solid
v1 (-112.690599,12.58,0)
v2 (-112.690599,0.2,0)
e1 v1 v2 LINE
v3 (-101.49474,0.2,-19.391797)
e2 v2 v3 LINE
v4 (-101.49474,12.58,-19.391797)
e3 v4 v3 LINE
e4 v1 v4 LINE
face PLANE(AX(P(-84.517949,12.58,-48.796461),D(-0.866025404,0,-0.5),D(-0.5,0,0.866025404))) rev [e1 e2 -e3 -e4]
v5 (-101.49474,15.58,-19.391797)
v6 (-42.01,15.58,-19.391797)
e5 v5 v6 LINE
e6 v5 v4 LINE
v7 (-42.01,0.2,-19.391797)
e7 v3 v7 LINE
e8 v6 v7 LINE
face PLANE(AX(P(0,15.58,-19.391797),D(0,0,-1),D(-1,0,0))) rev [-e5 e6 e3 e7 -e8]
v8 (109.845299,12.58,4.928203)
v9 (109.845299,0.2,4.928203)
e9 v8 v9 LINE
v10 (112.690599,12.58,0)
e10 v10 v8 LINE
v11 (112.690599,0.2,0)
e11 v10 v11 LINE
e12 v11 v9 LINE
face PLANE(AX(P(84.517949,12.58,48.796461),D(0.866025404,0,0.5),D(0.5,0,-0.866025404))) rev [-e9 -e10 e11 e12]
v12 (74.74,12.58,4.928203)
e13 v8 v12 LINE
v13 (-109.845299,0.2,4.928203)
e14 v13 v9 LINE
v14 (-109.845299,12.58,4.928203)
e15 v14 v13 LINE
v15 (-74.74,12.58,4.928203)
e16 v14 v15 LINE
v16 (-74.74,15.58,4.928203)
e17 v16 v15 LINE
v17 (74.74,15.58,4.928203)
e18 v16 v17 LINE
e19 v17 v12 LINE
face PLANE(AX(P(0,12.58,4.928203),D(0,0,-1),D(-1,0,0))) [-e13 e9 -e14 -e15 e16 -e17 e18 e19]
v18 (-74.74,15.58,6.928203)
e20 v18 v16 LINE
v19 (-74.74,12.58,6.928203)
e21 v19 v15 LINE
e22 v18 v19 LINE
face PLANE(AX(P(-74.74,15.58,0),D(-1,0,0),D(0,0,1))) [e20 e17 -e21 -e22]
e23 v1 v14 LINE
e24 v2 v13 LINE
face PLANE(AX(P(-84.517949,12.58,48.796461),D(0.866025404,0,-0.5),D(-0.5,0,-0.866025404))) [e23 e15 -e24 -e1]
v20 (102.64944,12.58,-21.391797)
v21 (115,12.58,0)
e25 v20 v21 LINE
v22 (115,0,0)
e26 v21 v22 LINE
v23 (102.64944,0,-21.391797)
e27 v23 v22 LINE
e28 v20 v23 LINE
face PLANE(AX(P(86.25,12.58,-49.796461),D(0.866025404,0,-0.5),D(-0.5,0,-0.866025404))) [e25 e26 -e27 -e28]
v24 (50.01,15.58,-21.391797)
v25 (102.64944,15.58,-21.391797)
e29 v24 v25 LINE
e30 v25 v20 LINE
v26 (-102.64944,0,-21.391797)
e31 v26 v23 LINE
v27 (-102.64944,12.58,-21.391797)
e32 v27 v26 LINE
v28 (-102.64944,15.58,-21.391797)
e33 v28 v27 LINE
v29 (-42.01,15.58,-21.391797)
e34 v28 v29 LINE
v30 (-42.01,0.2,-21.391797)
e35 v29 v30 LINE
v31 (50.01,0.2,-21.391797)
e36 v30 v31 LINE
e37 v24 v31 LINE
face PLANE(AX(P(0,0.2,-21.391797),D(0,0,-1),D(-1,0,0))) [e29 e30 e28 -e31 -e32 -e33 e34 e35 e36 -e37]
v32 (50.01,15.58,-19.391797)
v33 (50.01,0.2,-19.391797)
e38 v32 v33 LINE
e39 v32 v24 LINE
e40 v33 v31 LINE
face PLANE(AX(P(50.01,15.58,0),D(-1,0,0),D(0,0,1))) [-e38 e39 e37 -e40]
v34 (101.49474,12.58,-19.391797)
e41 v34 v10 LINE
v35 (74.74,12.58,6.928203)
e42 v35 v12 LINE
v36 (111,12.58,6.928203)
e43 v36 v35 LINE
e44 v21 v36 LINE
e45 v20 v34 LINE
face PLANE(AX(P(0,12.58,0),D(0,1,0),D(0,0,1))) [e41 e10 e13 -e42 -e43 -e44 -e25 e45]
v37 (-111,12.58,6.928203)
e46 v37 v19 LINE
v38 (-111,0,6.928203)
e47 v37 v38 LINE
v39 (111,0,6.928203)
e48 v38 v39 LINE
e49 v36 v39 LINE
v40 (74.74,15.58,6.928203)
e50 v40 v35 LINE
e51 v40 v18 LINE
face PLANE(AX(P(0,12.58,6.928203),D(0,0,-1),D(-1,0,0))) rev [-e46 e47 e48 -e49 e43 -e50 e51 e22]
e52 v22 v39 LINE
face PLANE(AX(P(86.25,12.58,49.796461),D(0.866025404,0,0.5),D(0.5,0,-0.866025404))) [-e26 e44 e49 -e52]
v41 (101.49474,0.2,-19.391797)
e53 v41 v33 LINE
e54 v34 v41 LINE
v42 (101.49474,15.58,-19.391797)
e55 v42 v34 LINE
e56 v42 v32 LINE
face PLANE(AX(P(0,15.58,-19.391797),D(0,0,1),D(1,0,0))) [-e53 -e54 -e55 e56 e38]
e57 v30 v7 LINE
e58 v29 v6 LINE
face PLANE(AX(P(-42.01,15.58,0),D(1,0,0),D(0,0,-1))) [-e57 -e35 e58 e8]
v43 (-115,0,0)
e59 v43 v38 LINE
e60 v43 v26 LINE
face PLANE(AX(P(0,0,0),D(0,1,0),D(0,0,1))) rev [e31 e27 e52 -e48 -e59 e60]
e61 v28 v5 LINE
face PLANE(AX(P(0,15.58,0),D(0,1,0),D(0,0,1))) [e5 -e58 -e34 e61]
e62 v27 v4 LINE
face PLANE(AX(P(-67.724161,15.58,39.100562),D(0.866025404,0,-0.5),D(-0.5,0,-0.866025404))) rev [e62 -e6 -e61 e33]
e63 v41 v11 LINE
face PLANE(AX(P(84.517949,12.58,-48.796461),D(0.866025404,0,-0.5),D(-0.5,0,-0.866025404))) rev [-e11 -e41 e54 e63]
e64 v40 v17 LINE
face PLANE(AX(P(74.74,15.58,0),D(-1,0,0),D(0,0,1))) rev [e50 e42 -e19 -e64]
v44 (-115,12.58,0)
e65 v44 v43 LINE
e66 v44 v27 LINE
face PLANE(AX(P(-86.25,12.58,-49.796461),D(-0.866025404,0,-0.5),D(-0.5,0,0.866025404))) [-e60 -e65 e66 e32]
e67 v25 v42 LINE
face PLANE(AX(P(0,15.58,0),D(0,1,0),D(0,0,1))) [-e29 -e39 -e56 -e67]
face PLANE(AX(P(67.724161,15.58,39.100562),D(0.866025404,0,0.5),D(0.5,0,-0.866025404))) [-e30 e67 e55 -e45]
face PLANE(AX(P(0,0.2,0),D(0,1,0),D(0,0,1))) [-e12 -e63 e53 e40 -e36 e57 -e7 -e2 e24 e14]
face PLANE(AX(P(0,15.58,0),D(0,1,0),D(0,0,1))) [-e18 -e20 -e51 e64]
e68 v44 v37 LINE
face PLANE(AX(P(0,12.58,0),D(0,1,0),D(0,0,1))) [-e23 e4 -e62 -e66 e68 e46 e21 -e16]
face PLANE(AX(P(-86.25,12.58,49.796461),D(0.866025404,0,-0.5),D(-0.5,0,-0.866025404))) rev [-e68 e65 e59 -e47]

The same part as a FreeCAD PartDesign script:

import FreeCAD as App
import Part
import Sketcher
Q = App.Units.Quantity


def add_polygon(sketch, points):
    """Adds a closed chain of lines whose ends are joined by coincident constraints."""
    first, n = sketch.GeometryCount, len(points)
    for a, b in zip(points, points[1:] + points[:1]):
        sketch.addGeometry(Part.LineSegment(App.Vector(*a, 0), App.Vector(*b, 0)), False)
    for i in range(n):
        sketch.addConstraint(Sketcher.Constraint("Coincident", first + i, 2, first + (i + 1) % n, 1))

doc = App.newDocument("Part")
body = doc.addObject("PartDesign::Body", "Body")

# Sketch on XZ plane
sketch1 = body.newObject("Sketcher::SketchObject", "Sketch")
sketch1.AttachmentSupport = (doc.getObject("XZ_Plane"), [""])
sketch1.MapMode = "FlatFace"
add_polygon(sketch1, [(-42, -19.4), (-101.5, -19.4), (-112.7, 0), (-109.8, 4.9), (109.8, 4.9), (112.7, 0), (101.5, -19.4), (50, -19.4), (50, -21.4), (-42, -21.4)])  # lines 0-9
sketch1.addConstraint(Sketcher.Constraint("Horizontal", 0))
sketch1.addConstraint(Sketcher.Constraint("Horizontal", 3))
sketch1.addConstraint(Sketcher.Constraint("Horizontal", 6))
sketch1.addConstraint(Sketcher.Constraint("Vertical", 7))
sketch1.addConstraint(Sketcher.Constraint("Horizontal", 8))
sketch1.addConstraint(Sketcher.Constraint("Vertical", 9))
sketch1.addConstraint(Sketcher.Constraint("Symmetric", 1, 2, 4, 2, -1, 1))
sketch1.addConstraint(Sketcher.Constraint("Symmetric", 0, 2, 5, 2, -2))
sketch1.addConstraint(Sketcher.Constraint("PointOnObject", 1, 2, -1))
sketch1.addConstraint(Sketcher.Constraint("Parallel", 1, 4))
sketch1.addConstraint(Sketcher.Constraint("Parallel", 2, 5))
sketch1.addConstraint(Sketcher.Constraint("DistanceY", 7, 2, 7, 1, 2.0))
sketch1.addConstraint(Sketcher.Constraint("Angle", 1, Q("120 deg")))
sketch1.addConstraint(Sketcher.Constraint("DistanceX", 8, 2, 8, 1, 92.02))
sketch1.addConstraint(Sketcher.Constraint("DistanceX", -1, 1, 6, 2, 50.01))
sketch1.addConstraint(Sketcher.Constraint("DistanceY", 0, 2, 2, 2, 24.32))
sketch1.addConstraint(Sketcher.Constraint("DistanceX", 3, 1, 3, 2, 219.690599))
sketch1.addConstraint(Sketcher.Constraint("Distance", 2, 5.690599))
pad1 = body.newObject("PartDesign::Pad", "Pad")
pad1.Profile = sketch1
pad1.Length = 0.2
pad1.Reversed = True

# Sketch on XZ plane
sketch2 = body.newObject("Sketcher::SketchObject", "Sketch001")
sketch2.AttachmentSupport = (doc.getObject("XZ_Plane"), [""])
sketch2.MapMode = "FlatFace"
add_polygon(sketch2, [(-115, 0), (-111, 6.9), (-74.7, 6.9), (-74.7, 4.9), (-109.8, 4.9), (-112.7, 0), (-101.5, -19.4), (-102.6, -21.4)])  # lines 0-7
add_polygon(sketch2, [(111, 6.9), (115, 0), (102.6, -21.4), (101.5, -19.4), (112.7, 0), (109.8, 4.9), (74.7, 4.9), (74.7, 6.9)])  # lines 8-15
sketch2.addConstraint(Sketcher.Constraint("Horizontal", 1))
sketch2.addConstraint(Sketcher.Constraint("Vertical", 2))
sketch2.addConstraint(Sketcher.Constraint("Horizontal", 3))
sketch2.addConstraint(Sketcher.Constraint("Horizontal", 13))
sketch2.addConstraint(Sketcher.Constraint("Vertical", 14))
sketch2.addConstraint(Sketcher.Constraint("Horizontal", 15))
sketch2.addConstraint(Sketcher.Constraint("Symmetric", 7, 2, 8, 2, -1, 1))
sketch2.addConstraint(Sketcher.Constraint("Symmetric", 4, 2, 11, 2, -1, 1))
sketch2.addConstraint(Sketcher.Constraint("Symmetric", 6, 2, 9, 2, -2))
sketch2.addConstraint(Sketcher.Constraint("Symmetric", 5, 2, 10, 2, -2))
sketch2.addConstraint(Sketcher.Constraint("Symmetric", 3, 2, 12, 2, -2))
sketch2.addConstraint(Sketcher.Constraint("Symmetric", 1, 2, 14, 2, -2))
sketch2.addConstraint(Sketcher.Constraint("PointOnObject", 4, 2, -1))
sketch2.addConstraint(Sketcher.Constraint("PointOnObject", 7, 2, -1))
sketch2.addConstraint(Sketcher.Constraint("Parallel", 0, 4))
sketch2.addConstraint(Sketcher.Constraint("Parallel", 4, 6))
sketch2.addConstraint(Sketcher.Constraint("Parallel", 5, 7))
sketch2.addConstraint(Sketcher.Constraint("Parallel", 7, 8))
sketch2.addConstraint(Sketcher.Constraint("Parallel", 6, 9))
sketch2.addConstraint(Sketcher.Constraint("DistanceY", 2, 2, 2, 1, 2.0))
sketch2.addConstraint(Sketcher.Constraint("Angle", 0, Q("60 deg")))
sketch2.addConstraint(Sketcher.Constraint("Distance", 0, 8.0))
sketch2.addConstraint(Sketcher.Constraint("DistanceX", 0, 2, -1, 1, 111.0))
sketch2.addConstraint(Sketcher.Constraint("DistanceY", 6, 2, 5, 2, 2.0))
sketch2.addConstraint(Sketcher.Constraint("DistanceX", 1, 1, 1, 2, 36.26))
sketch2.addConstraint(Sketcher.Constraint("DistanceY", 5, 2, 3, 2, 24.32))
pad2 = body.newObject("PartDesign::Pad", "Pad001")
pad2.Profile = sketch2
pad2.Length = 12.58
pad2.Reversed = True

# Sketch on XZ plane
sketch3 = body.newObject("Sketcher::SketchObject", "Sketch002")
sketch3.AttachmentSupport = (doc.getObject("XZ_Plane"), [""])
sketch3.MapMode = "FlatFace"
add_polygon(sketch3, [(-42, -21.4), (-102.6, -21.4), (-101.5, -19.4), (-42, -19.4)])  # lines 0-3
add_polygon(sketch3, [(-74.7, 4.9), (-74.7, 6.9), (74.7, 6.9), (74.7, 4.9)])  # lines 4-7
add_polygon(sketch3, [(102.6, -21.4), (50, -21.4), (50, -19.4), (101.5, -19.4)])  # lines 8-11
sketch3.addConstraint(Sketcher.Constraint("Horizontal", 0))
sketch3.addConstraint(Sketcher.Constraint("Horizontal", 2))
sketch3.addConstraint(Sketcher.Constraint("Vertical", 3))
sketch3.addConstraint(Sketcher.Constraint("Vertical", 4))
sketch3.addConstraint(Sketcher.Constraint("Horizontal", 5))
sketch3.addConstraint(Sketcher.Constraint("Vertical", 6))
sketch3.addConstraint(Sketcher.Constraint("Horizontal", 7))
sketch3.addConstraint(Sketcher.Constraint("Horizontal", 8))
sketch3.addConstraint(Sketcher.Constraint("Vertical", 9))
sketch3.addConstraint(Sketcher.Constraint("Horizontal", 10))
sketch3.addConstraint(Sketcher.Constraint("Symmetric", 1, 2, 10, 2, -2))
sketch3.addConstraint(Sketcher.Constraint("Symmetric", 0, 2, 11, 2, -2))
sketch3.addConstraint(Sketcher.Constraint("Equal", 3, 4))
sketch3.addConstraint(Sketcher.Constraint("DistanceY", 3, 2, 3, 1, 2.0))
sketch3.addConstraint(Sketcher.Constraint("Angle", 1, Q("60 deg")))
sketch3.addConstraint(Sketcher.Constraint("DistanceX", 5, 1, 5, 2, 149.48))
sketch3.addConstraint(Sketcher.Constraint("DistanceX", 2, 2, -1, 1, 42.01))
sketch3.addConstraint(Sketcher.Constraint("DistanceX", 4, 2, -1, 1, 74.74))
sketch3.addConstraint(Sketcher.Constraint("DistanceX", -1, 1, 8, 2, 50.01))
sketch3.addConstraint(Sketcher.Constraint("DistanceY", 1, 2, 4, 2, 26.32))
sketch3.addConstraint(Sketcher.Constraint("DistanceX", 0, 2, 0, 1, 60.63944))
sketch3.addConstraint(Sketcher.Constraint("DistanceY", 0, 2, -1, 1, 21.391797))
pad3 = body.newObject("PartDesign::Pad", "Pad002")
pad3.Profile = sketch3
pad3.Length = 15.58
pad3.Reversed = True

doc.recompute()
